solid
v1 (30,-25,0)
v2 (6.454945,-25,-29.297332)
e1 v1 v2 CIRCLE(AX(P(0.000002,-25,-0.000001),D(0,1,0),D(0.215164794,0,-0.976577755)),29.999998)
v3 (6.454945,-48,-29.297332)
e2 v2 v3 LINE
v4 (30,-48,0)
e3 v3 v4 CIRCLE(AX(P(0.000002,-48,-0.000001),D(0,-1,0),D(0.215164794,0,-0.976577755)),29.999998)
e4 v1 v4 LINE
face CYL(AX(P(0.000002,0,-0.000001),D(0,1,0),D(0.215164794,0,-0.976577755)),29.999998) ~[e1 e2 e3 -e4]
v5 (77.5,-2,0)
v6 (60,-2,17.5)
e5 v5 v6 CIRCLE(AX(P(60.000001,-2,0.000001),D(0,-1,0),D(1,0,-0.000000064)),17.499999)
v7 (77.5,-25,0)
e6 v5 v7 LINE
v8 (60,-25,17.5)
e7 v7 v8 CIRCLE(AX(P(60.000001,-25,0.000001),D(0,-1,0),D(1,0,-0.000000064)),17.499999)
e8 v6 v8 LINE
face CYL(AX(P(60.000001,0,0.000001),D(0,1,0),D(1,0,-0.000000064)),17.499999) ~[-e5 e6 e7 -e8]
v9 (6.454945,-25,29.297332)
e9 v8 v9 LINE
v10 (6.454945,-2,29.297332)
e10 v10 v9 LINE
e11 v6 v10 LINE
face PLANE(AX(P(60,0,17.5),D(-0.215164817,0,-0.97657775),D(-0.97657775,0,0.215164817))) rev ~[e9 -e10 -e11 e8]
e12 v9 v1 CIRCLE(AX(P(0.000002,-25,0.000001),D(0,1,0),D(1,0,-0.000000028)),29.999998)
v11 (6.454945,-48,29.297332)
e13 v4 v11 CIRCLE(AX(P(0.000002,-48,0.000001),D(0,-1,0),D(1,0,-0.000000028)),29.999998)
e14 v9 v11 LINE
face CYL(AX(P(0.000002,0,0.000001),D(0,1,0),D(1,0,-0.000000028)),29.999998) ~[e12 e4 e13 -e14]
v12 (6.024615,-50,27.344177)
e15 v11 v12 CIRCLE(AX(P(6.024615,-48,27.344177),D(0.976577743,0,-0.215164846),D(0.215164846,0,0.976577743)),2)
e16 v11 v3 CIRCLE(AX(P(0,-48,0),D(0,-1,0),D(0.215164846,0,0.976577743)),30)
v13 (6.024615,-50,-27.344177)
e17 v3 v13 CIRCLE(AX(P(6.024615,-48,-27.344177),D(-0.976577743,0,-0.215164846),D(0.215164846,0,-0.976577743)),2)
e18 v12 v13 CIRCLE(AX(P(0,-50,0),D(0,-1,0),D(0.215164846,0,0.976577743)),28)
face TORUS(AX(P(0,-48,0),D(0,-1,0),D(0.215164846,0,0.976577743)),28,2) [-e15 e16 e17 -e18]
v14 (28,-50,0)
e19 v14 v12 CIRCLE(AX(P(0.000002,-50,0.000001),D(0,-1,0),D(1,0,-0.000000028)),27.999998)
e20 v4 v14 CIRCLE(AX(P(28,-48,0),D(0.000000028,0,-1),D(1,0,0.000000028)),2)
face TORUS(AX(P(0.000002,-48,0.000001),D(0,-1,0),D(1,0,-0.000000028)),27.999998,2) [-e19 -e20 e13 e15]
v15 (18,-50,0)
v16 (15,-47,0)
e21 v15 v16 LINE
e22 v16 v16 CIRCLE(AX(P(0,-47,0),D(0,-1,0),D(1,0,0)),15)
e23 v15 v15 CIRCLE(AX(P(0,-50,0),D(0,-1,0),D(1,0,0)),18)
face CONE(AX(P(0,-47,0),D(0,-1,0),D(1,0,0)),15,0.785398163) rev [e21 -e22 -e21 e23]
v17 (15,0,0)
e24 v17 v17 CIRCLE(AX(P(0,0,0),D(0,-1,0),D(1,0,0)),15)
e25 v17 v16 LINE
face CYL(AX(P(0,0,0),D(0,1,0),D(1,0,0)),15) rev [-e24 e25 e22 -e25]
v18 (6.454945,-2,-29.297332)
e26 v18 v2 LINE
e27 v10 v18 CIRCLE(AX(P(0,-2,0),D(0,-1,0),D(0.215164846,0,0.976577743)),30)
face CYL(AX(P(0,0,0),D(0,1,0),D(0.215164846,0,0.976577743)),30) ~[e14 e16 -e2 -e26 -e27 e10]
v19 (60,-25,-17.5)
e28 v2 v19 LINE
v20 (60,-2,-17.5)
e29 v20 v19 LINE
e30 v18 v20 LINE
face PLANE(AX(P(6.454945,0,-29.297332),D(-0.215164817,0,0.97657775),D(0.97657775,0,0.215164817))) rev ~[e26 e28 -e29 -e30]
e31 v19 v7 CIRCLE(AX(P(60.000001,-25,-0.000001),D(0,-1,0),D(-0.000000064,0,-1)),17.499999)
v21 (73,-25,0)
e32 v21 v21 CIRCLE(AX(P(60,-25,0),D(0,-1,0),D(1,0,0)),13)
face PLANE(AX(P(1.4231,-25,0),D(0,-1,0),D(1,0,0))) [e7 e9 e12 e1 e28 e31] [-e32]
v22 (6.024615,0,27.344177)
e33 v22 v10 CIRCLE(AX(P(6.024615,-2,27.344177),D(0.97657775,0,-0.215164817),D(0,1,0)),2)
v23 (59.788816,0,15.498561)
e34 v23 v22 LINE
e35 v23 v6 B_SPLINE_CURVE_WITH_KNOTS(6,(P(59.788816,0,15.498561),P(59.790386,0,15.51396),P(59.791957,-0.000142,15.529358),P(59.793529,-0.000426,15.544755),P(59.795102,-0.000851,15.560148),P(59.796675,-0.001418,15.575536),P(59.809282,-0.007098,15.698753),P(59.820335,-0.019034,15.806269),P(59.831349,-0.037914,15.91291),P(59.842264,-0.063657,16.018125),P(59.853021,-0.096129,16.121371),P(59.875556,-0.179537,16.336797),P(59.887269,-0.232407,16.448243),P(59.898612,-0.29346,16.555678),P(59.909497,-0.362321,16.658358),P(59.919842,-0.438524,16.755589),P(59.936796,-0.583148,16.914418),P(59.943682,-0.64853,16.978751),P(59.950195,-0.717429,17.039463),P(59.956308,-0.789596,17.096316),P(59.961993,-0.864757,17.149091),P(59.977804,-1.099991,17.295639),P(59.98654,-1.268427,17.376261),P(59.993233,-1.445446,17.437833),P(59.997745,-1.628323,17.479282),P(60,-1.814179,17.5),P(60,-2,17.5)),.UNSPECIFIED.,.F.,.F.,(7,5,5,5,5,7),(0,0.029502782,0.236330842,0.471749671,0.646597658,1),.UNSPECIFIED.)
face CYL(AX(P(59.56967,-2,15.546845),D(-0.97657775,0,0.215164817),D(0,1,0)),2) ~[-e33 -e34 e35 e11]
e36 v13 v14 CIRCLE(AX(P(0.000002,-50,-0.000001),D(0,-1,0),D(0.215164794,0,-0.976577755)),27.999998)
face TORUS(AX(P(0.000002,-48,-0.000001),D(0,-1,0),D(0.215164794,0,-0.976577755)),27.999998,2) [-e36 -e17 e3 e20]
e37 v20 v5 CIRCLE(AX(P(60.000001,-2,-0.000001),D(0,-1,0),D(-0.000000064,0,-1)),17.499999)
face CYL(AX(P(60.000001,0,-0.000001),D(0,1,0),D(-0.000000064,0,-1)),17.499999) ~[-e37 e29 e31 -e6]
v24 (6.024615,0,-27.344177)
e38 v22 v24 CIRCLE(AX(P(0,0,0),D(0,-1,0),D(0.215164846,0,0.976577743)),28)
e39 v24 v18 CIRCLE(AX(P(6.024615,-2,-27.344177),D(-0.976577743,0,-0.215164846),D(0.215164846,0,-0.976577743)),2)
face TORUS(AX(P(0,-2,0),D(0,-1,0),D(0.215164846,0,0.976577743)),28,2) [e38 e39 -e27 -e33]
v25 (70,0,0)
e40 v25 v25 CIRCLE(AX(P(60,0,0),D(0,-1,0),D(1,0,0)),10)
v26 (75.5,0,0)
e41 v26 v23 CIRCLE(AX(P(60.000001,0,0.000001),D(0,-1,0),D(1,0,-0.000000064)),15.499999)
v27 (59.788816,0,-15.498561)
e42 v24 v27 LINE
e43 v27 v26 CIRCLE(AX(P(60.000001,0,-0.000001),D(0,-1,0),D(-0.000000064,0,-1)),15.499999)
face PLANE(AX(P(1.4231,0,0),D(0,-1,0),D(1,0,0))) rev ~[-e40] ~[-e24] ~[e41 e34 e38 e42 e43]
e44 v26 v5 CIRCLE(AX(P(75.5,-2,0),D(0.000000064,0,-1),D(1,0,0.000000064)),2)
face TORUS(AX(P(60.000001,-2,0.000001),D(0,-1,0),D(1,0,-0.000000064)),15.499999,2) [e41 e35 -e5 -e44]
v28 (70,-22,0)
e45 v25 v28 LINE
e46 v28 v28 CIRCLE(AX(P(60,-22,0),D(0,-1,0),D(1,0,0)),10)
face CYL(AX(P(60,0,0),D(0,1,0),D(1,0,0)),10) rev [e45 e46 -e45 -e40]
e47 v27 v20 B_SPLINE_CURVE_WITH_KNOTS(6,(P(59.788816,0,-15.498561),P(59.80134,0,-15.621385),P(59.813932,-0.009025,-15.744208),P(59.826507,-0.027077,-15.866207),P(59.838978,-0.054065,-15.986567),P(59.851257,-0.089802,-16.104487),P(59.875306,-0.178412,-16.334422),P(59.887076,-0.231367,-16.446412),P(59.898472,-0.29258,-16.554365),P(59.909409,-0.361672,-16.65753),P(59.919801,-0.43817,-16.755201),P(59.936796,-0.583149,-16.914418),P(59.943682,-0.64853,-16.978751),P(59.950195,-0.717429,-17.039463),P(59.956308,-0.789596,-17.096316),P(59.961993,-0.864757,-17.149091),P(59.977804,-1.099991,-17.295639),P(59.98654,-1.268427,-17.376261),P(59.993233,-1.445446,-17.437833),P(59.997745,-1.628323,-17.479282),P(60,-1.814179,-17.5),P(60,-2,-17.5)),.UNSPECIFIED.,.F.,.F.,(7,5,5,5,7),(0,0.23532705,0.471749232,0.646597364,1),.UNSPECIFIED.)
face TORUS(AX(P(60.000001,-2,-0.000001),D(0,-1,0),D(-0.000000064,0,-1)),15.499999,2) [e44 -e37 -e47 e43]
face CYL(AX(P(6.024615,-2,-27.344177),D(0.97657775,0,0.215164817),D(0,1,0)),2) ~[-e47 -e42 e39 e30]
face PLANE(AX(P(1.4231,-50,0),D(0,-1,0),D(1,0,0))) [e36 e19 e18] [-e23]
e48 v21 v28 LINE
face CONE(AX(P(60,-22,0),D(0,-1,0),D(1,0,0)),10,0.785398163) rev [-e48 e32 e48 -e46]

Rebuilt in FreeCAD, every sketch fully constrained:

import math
import FreeCAD as App
import Part
import Sketcher
Q = App.Units.Quantity


def edges_at(feature, points):
    """Names of the edges that pass closest to the given points."""
    edges = feature.Shape.Edges
    near = lambda p: min(range(len(edges)), key=lambda i: edges[i].distToShape(Part.Vertex(*p))[0])
    return sorted({f"Edge{near(p) + 1}" for p in points})

doc = App.newDocument("Part")
body = doc.addObject("PartDesign::Body", "Body")

sketch1 = body.newObject("Sketcher::SketchObject", "Sketch")
sketch1.AttachmentSupport = (doc.getObject("XZ_Plane"), [""])
sketch1.MapMode = "FlatFace"
sketch1.addGeometry([
    Part.ArcOfCircle(Part.Circle(App.Vector(0, 0, 0), App.Vector(0, 0, 1), 30), math.radians(77.574801), math.radians(282.425199)),
    Part.LineSegment(App.Vector(6.454945, -29.297332, 0), App.Vector(60, -17.5, 0)),
    Part.ArcOfCircle(Part.Circle(App.Vector(60.000001, -0.000001, 0), App.Vector(0, 0, 1), 17.499999), math.radians(-90.000004), math.radians(0.000004)),
    Part.ArcOfCircle(Part.Circle(App.Vector(60.000001, 0.000001, 0), App.Vector(0, 0, 1), 17.499999), math.radians(-0.000004), math.radians(90.000004)),
    Part.LineSegment(App.Vector(60, 17.5, 0), App.Vector(6.454945, 29.297332, 0)),
    Part.Circle(App.Vector(0, 0, 0), App.Vector(0, 0, 1), 15),
    Part.Circle(App.Vector(60, 0, 0), App.Vector(0, 0, 1), 10),
], False)
sketch1.addConstraint([
    Sketcher.Constraint("Tangent", 0, 2, 1, 1),
    Sketcher.Constraint("Coincident", 1, 2, 2, 1),
    Sketcher.Constraint("Tangent", 2, 2, 3, 1),
    Sketcher.Constraint("Coincident", 3, 2, 4, 1),
    Sketcher.Constraint("Tangent", 4, 2, 0, 1),
    Sketcher.Constraint("Coincident", 0, 3, -1, 1),
    Sketcher.Constraint("Coincident", 5, 3, -1, 1),
    Sketcher.Constraint("Coincident", 6, 3, 2, 3),
    Sketcher.Constraint("Equal", 2, 3),
    Sketcher.Constraint("Symmetric", 1, 2, 3, 2, -1),
    Sketcher.Constraint("PointOnObject", 2, 2, -1),
    Sketcher.Constraint("Vertical", 6, 3, 1, 2),
    Sketcher.Constraint("Diameter", 5, Q("30 mm")),
    Sketcher.Constraint("Diameter", 6, Q("20 mm")),
    Sketcher.Constraint("Radius", 0, Q("30 mm")),
    Sketcher.Constraint("Radius", 2, Q("17.499999 mm")),
    Sketcher.Constraint("DistanceX", -1, 1, 2, 3, Q("60.000001 mm")),
])
pad1 = body.newObject("PartDesign::Pad", "Pad")
pad1.Profile = sketch1
pad1.Length = 25

sketch2 = body.newObject("Sketcher::SketchObject", "Sketch001")
sketch2.AttachmentSupport = (doc.getObject("XZ_Plane"), [""])
sketch2.MapMode = "FlatFace"
sketch2.addGeometry([
    Part.ArcOfCircle(Part.Circle(App.Vector(0.000002, -0.000001, 0), App.Vector(0, 0, 1), 29.999998), math.radians(-77.574804), math.radians(0.000002)),
    Part.ArcOfCircle(Part.Circle(App.Vector(0.000002, 0.000001, 0), App.Vector(0, 0, 1), 29.999998), math.radians(-0.000002), math.radians(77.574804)),
    Part.ArcOfCircle(Part.Circle(App.Vector(0, 0, 0), App.Vector(0, 0, 1), 30), math.radians(77.574801), math.radians(282.425199)),
    Part.Circle(App.Vector(0, 0, 0), App.Vector(0, 0, 1), 15),
], False)
sketch2.addConstraint([
    Sketcher.Constraint("Tangent", 0, 2, 1, 1),
    Sketcher.Constraint("Tangent", 1, 2, 2, 1),
    Sketcher.Constraint("Tangent", 2, 2, 0, 1),
    Sketcher.Constraint("Coincident", 0, 3, -1, 1),
    Sketcher.Constraint("Coincident", 3, 3, -1, 1),
    Sketcher.Constraint("PointOnObject", 0, 2, -1),
    Sketcher.Constraint("Vertical", 1, 2, 2, 2),
    Sketcher.Constraint("Diameter", 3, Q("30 mm")),
    Sketcher.Constraint("Radius", 0, Q("29.999998 mm")),
    Sketcher.Constraint("DistanceY", -1, 1, 1, 2, Q("29.297332 mm")),
])
pad2 = body.newObject("PartDesign::Pad", "Pad001")
pad2.Profile = sketch2
pad2.Length = 50
doc.recompute()

fillet = body.newObject("PartDesign::Fillet", "Fillet")
fillet.Base = (pad2, edges_at(pad2, [
    (33.227, 0, -23.399),
    (-30, -50, 0),
    (72.374, 0, -12.374),
    (-30, 0, 0),
    (33.227, 0, 23.399),
]))
fillet.Radius = 2
doc.recompute()

chamfer = body.newObject("PartDesign::Chamfer", "Chamfer")
chamfer.Base = (fillet, edges_at(fillet, [(-15, -50, 0), (50, -25, 0)]))
chamfer.Size = 3

doc.recompute()
